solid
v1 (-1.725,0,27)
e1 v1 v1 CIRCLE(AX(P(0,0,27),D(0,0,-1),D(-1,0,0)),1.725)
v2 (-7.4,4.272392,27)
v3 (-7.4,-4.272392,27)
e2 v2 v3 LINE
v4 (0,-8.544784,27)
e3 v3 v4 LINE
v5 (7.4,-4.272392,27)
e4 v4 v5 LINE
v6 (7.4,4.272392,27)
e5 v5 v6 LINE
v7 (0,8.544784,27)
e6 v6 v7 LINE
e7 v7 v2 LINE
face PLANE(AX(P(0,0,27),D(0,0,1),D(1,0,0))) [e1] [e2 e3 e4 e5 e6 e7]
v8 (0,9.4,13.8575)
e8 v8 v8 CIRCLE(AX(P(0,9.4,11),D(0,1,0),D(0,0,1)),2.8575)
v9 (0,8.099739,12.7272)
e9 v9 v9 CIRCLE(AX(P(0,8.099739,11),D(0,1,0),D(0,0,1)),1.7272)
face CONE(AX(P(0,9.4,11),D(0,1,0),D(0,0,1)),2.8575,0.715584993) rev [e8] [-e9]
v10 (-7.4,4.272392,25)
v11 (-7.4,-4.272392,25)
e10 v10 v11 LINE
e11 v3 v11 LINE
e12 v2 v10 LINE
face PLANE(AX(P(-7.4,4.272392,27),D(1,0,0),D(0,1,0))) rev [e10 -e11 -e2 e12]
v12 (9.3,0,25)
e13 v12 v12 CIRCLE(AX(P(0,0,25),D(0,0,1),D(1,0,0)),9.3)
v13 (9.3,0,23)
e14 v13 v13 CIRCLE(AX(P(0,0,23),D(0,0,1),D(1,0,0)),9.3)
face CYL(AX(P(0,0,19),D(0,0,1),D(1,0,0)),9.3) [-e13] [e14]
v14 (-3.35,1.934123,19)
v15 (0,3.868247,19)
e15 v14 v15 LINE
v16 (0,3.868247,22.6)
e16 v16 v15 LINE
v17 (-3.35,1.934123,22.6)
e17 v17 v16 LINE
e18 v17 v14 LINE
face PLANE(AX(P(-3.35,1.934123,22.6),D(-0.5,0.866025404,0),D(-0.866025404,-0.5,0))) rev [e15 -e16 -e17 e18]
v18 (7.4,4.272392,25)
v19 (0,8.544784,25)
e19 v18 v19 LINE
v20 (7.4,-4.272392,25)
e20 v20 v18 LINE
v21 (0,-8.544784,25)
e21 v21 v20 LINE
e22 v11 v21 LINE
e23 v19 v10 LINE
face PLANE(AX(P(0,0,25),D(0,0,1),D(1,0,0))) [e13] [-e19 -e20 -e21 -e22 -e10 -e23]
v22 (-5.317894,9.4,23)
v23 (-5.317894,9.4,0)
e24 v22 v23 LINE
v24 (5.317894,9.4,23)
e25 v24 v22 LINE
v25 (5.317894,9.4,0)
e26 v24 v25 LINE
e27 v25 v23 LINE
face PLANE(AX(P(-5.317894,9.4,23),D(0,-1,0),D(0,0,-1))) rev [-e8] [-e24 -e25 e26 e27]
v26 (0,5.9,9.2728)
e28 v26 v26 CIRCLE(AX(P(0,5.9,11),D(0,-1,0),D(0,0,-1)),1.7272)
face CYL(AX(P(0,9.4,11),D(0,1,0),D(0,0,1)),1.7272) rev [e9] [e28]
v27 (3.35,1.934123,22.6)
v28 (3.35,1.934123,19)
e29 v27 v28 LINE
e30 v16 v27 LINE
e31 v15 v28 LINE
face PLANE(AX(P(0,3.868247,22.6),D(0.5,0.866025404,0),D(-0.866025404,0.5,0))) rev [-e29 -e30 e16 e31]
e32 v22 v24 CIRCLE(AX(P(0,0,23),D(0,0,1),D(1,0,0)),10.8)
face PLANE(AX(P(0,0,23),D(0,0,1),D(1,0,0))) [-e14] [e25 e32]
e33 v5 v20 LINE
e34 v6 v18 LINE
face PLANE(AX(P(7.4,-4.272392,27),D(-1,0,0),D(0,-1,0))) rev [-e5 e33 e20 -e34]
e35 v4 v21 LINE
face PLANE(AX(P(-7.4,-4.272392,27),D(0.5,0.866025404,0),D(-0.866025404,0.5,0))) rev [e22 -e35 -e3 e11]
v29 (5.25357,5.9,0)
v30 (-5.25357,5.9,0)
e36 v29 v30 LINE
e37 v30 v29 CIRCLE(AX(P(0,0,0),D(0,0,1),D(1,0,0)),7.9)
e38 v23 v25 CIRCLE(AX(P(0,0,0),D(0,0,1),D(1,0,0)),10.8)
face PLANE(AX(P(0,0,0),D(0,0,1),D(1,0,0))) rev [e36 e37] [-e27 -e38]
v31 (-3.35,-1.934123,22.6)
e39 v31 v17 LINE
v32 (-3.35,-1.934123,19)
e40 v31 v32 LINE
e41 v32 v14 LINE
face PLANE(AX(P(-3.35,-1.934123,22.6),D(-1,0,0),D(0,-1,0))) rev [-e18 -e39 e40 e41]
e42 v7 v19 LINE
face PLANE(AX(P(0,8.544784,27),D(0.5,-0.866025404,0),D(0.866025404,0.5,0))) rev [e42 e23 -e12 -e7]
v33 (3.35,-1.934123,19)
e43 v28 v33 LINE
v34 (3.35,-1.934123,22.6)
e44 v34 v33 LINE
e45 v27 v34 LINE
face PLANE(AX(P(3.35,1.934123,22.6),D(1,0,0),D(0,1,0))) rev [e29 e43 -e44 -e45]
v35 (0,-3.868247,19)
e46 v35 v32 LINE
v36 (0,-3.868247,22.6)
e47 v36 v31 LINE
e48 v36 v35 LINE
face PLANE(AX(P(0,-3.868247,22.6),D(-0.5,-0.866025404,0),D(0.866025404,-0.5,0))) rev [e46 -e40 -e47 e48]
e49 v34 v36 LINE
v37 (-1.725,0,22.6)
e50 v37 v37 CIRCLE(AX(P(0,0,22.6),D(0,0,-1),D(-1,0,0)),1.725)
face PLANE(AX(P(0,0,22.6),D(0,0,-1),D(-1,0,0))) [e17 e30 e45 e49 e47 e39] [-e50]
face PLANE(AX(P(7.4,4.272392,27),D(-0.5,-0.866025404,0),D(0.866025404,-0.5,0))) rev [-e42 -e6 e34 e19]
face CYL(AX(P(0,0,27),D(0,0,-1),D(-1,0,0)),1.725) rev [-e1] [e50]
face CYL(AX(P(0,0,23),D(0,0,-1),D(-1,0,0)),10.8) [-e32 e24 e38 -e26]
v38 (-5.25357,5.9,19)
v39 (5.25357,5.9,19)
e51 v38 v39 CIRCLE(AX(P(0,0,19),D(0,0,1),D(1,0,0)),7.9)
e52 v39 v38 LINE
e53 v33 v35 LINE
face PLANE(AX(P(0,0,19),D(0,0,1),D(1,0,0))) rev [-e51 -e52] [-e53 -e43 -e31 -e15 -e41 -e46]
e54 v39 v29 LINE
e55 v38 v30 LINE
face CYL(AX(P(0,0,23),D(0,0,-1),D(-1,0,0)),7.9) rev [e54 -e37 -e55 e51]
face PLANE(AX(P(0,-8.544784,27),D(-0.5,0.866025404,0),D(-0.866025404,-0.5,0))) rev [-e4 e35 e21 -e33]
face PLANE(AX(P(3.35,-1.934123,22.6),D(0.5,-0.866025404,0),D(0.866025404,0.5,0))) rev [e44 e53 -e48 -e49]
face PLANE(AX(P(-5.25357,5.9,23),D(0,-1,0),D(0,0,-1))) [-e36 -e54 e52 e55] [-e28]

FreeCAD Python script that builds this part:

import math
import FreeCAD as App
import Part
import Sketcher
from FreeCAD import Vector
Q = App.Units.Quantity


def add_polygon(sketch, points):
    """Adds a closed chain of lines whose ends are joined by coincident constraints."""
    first, n = sketch.GeometryCount, len(points)
    for a, b in zip(points, points[1:] + points[:1]):
        sketch.addGeometry(Part.LineSegment(App.Vector(*a, 0), App.Vector(*b, 0)), False)
    for i in range(n):
        sketch.addConstraint(Sketcher.Constraint("Coincident", first + i, 2, first + (i + 1) % n, 1))

doc = App.newDocument("Part")
body = doc.addObject("PartDesign::Body", "Body")

# Sketch on XY plane
sketch1 = body.newObject("Sketcher::SketchObject", "Sketch")
sketch1.AttachmentSupport = (doc.getObject("XY_Plane"), [""])
sketch1.MapMode = "FlatFace"
sketch1.addGeometry(Part.LineSegment(Vector(5, 9, 0), Vector(-5, 9, 0)), False)
sketch1.addGeometry(Part.ArcOfCircle(Part.Circle(Vector(0, 0, 0), Vector(0, 0, 1), 11), math.radians(119), math.radians(421)), False)
sketch1.addGeometry(Part.LineSegment(Vector(-5, 6, 0), Vector(5, 6, 0)), False)
sketch1.addGeometry(Part.ArcOfCircle(Part.Circle(Vector(0, 0, 0), Vector(0, 0, 1), 8), math.radians(132), math.radians(408)), False)
sketch1.addConstraint(Sketcher.Constraint("Coincident", 0, 1, 1, 2))
sketch1.addConstraint(Sketcher.Constraint("Coincident", 1, 1, 0, 2))
sketch1.addConstraint(Sketcher.Constraint("Coincident", 2, 1, 3, 1))
sketch1.addConstraint(Sketcher.Constraint("Coincident", 3, 2, 2, 2))
sketch1.addConstraint(Sketcher.Constraint("Horizontal", 0))
sketch1.addConstraint(Sketcher.Constraint("Horizontal", 2))
sketch1.addConstraint(Sketcher.Constraint("Coincident", 1, 3, -1, 1))
sketch1.addConstraint(Sketcher.Constraint("Coincident", 3, 3, -1, 1))
sketch1.addConstraint(Sketcher.Constraint("Radius", 1, Q("10.8 mm")))
sketch1.addConstraint(Sketcher.Constraint("Radius", 3, Q("7.9 mm")))
sketch1.addConstraint(Sketcher.Constraint("DistanceY", -1, 1, 0, 1, Q("9.4 mm")))
sketch1.addConstraint(Sketcher.Constraint("DistanceY", -1, 1, 2, 1, Q("5.9 mm")))
pad1 = body.newObject("PartDesign::Pad", "Pad")
pad1.Profile = sketch1
pad1.Length = 23

# Sketch on XZ plane
sketch2 = body.newObject("Sketcher::SketchObject", "Sketch001")
sketch2.AttachmentSupport = (doc.getObject("XZ_Plane"), [""])
sketch2.MapMode = "FlatFace"
sketch2.AttachmentOffset = App.Placement(Vector(0, 0, -9.4), App.Rotation())
sketch2.addGeometry(Part.Circle(Vector(0, 11, 0), Vector(0, 0, 1), 1.7), False)
sketch2.addConstraint(Sketcher.Constraint("PointOnObject", 0, 3, -2))
sketch2.addConstraint(Sketcher.Constraint("DistanceY", -1, 1, 0, 3, Q("11 mm")))
sketch2.addConstraint(Sketcher.Constraint("Diameter", 0, Q("3.4544 mm")))
doc.recompute()
hole = body.newObject("PartDesign::Hole", "Hole")
hole.Profile = sketch2
hole.ThreadType = "None"
hole.Diameter = 3.4544
hole.DepthType = "Dimension"
hole.Depth = 3.5
hole.DrillPoint = "Flat"
hole.HoleCutType = "Countersink"
hole.HoleCutDiameter = 5.715
hole.HoleCutCountersinkAngle = 82
hole.Reversed = True

# Sketch on XY plane
sketch3 = body.newObject("Sketcher::SketchObject", "Sketch002")
sketch3.AttachmentSupport = (doc.getObject("XY_Plane"), [""])
sketch3.MapMode = "FlatFace"
sketch3.AttachmentOffset = App.Placement(Vector(0, 0, 23), App.Rotation())
sketch3.addGeometry(Part.Circle(Vector(0, 0, 0), Vector(0, 0, 1), 9), False)
sketch3.addConstraint(Sketcher.Constraint("Coincident", 0, 3, -1, 1))
sketch3.addConstraint(Sketcher.Constraint("Diameter", 0, Q("18.6 mm")))
pad2 = body.newObject("PartDesign::Pad", "Pad001")
pad2.Profile = sketch3
pad2.Type = "TwoLengths"
pad2.Length = 2
pad2.Length2 = 4

# Sketch on XY plane
sketch4 = body.newObject("Sketcher::SketchObject", "Sketch003")
sketch4.AttachmentSupport = (doc.getObject("XY_Plane"), [""])
sketch4.MapMode = "FlatFace"
sketch4.AttachmentOffset = App.Placement(Vector(0, 0, 25), App.Rotation())
add_polygon(sketch4, [(0, 9), (-7, 4), (-7, -4), (0, -9), (7, -4), (7, 4)])  # lines 0-5
sketch4.addConstraint(Sketcher.Constraint("Vertical", 1))
sketch4.addConstraint(Sketcher.Constraint("Vertical", 4))
sketch4.addConstraint(Sketcher.Constraint("Symmetric", 0, 2, 3, 2, -1, 1))
sketch4.addConstraint(Sketcher.Constraint("Symmetric", 2, 2, 5, 2, -1, 1))
sketch4.addConstraint(Sketcher.Constraint("PointOnObject", 2, 2, -2))
sketch4.addConstraint(Sketcher.Constraint("Parallel", 2, 5))
sketch4.addConstraint(Sketcher.Constraint("Horizontal", 1, 2, 3, 2))
sketch4.addConstraint(Sketcher.Constraint("Angle", 0, Q("-150 deg")))
sketch4.addConstraint(Sketcher.Constraint("DistanceX", 0, 2, -1, 1, Q("7.4 mm")))
sketch4.addConstraint(Sketcher.Constraint("DistanceY", 1, 2, 1, 1, Q("8.544784 mm")))
pad3 = body.newObject("PartDesign::Pad", "Pad002")
pad3.Profile = sketch4
pad3.Length = 2

# Sketch on XY plane
sketch5 = body.newObject("Sketcher::SketchObject", "Sketch004")
sketch5.AttachmentSupport = (doc.getObject("XY_Plane"), [""])
sketch5.MapMode = "FlatFace"
sketch5.AttachmentOffset = App.Placement(Vector(0, 0, 19), App.Rotation())
add_polygon(sketch5, [(0, 3.9), (3.4, 1.9), (3.4, -1.9), (0, -3.9), (-3.4, -1.9), (-3.4, 1.9)])  # lines 0-5
sketch5.addConstraint(Sketcher.Constraint("Vertical", 1))
sketch5.addConstraint(Sketcher.Constraint("Vertical", 4))
sketch5.addConstraint(Sketcher.Constraint("Symmetric", 0, 2, 3, 2, -1, 1))
sketch5.addConstraint(Sketcher.Constraint("Symmetric", 2, 2, 5, 2, -1, 1))
sketch5.addConstraint(Sketcher.Constraint("PointOnObject", 2, 2, -2))
sketch5.addConstraint(Sketcher.Constraint("Parallel", 2, 5))
sketch5.addConstraint(Sketcher.Constraint("Horizontal", 1, 2, 3, 2))
sketch5.addConstraint(Sketcher.Constraint("Angle", 0, Q("-30 deg")))
sketch5.addConstraint(Sketcher.Constraint("DistanceX", 3, 2, 1, 2, Q("6.7 mm")))
sketch5.addConstraint(Sketcher.Constraint("DistanceY", 1, 2, 1, 1, Q("3.868247 mm")))
pocket1 = body.newObject("PartDesign::Pocket", "Pocket")
pocket1.Profile = sketch5
pocket1.Length = 3.6
pocket1.Reversed = True

# Sketch on XY plane
sketch6 = body.newObject("Sketcher::SketchObject", "Sketch005")
sketch6.AttachmentSupport = (doc.getObject("XY_Plane"), [""])
sketch6.MapMode = "FlatFace"
sketch6.AttachmentOffset = App.Placement(Vector(0, 0, 19), App.Rotation())
sketch6.addGeometry(Part.Circle(Vector(0, 0, 0), Vector(0, 0, 1), 1.7), False)
sketch6.addConstraint(Sketcher.Constraint("Coincident", 0, 3, -1, 1))
sketch6.addConstraint(Sketcher.Constraint("Diameter", 0, Q("3.45 mm")))
pocket2 = body.newObject("PartDesign::Pocket", "Pocket001")
pocket2.Profile = sketch6
pocket2.Type = "ThroughAll"
pocket2.Reversed = True

doc.recompute()
